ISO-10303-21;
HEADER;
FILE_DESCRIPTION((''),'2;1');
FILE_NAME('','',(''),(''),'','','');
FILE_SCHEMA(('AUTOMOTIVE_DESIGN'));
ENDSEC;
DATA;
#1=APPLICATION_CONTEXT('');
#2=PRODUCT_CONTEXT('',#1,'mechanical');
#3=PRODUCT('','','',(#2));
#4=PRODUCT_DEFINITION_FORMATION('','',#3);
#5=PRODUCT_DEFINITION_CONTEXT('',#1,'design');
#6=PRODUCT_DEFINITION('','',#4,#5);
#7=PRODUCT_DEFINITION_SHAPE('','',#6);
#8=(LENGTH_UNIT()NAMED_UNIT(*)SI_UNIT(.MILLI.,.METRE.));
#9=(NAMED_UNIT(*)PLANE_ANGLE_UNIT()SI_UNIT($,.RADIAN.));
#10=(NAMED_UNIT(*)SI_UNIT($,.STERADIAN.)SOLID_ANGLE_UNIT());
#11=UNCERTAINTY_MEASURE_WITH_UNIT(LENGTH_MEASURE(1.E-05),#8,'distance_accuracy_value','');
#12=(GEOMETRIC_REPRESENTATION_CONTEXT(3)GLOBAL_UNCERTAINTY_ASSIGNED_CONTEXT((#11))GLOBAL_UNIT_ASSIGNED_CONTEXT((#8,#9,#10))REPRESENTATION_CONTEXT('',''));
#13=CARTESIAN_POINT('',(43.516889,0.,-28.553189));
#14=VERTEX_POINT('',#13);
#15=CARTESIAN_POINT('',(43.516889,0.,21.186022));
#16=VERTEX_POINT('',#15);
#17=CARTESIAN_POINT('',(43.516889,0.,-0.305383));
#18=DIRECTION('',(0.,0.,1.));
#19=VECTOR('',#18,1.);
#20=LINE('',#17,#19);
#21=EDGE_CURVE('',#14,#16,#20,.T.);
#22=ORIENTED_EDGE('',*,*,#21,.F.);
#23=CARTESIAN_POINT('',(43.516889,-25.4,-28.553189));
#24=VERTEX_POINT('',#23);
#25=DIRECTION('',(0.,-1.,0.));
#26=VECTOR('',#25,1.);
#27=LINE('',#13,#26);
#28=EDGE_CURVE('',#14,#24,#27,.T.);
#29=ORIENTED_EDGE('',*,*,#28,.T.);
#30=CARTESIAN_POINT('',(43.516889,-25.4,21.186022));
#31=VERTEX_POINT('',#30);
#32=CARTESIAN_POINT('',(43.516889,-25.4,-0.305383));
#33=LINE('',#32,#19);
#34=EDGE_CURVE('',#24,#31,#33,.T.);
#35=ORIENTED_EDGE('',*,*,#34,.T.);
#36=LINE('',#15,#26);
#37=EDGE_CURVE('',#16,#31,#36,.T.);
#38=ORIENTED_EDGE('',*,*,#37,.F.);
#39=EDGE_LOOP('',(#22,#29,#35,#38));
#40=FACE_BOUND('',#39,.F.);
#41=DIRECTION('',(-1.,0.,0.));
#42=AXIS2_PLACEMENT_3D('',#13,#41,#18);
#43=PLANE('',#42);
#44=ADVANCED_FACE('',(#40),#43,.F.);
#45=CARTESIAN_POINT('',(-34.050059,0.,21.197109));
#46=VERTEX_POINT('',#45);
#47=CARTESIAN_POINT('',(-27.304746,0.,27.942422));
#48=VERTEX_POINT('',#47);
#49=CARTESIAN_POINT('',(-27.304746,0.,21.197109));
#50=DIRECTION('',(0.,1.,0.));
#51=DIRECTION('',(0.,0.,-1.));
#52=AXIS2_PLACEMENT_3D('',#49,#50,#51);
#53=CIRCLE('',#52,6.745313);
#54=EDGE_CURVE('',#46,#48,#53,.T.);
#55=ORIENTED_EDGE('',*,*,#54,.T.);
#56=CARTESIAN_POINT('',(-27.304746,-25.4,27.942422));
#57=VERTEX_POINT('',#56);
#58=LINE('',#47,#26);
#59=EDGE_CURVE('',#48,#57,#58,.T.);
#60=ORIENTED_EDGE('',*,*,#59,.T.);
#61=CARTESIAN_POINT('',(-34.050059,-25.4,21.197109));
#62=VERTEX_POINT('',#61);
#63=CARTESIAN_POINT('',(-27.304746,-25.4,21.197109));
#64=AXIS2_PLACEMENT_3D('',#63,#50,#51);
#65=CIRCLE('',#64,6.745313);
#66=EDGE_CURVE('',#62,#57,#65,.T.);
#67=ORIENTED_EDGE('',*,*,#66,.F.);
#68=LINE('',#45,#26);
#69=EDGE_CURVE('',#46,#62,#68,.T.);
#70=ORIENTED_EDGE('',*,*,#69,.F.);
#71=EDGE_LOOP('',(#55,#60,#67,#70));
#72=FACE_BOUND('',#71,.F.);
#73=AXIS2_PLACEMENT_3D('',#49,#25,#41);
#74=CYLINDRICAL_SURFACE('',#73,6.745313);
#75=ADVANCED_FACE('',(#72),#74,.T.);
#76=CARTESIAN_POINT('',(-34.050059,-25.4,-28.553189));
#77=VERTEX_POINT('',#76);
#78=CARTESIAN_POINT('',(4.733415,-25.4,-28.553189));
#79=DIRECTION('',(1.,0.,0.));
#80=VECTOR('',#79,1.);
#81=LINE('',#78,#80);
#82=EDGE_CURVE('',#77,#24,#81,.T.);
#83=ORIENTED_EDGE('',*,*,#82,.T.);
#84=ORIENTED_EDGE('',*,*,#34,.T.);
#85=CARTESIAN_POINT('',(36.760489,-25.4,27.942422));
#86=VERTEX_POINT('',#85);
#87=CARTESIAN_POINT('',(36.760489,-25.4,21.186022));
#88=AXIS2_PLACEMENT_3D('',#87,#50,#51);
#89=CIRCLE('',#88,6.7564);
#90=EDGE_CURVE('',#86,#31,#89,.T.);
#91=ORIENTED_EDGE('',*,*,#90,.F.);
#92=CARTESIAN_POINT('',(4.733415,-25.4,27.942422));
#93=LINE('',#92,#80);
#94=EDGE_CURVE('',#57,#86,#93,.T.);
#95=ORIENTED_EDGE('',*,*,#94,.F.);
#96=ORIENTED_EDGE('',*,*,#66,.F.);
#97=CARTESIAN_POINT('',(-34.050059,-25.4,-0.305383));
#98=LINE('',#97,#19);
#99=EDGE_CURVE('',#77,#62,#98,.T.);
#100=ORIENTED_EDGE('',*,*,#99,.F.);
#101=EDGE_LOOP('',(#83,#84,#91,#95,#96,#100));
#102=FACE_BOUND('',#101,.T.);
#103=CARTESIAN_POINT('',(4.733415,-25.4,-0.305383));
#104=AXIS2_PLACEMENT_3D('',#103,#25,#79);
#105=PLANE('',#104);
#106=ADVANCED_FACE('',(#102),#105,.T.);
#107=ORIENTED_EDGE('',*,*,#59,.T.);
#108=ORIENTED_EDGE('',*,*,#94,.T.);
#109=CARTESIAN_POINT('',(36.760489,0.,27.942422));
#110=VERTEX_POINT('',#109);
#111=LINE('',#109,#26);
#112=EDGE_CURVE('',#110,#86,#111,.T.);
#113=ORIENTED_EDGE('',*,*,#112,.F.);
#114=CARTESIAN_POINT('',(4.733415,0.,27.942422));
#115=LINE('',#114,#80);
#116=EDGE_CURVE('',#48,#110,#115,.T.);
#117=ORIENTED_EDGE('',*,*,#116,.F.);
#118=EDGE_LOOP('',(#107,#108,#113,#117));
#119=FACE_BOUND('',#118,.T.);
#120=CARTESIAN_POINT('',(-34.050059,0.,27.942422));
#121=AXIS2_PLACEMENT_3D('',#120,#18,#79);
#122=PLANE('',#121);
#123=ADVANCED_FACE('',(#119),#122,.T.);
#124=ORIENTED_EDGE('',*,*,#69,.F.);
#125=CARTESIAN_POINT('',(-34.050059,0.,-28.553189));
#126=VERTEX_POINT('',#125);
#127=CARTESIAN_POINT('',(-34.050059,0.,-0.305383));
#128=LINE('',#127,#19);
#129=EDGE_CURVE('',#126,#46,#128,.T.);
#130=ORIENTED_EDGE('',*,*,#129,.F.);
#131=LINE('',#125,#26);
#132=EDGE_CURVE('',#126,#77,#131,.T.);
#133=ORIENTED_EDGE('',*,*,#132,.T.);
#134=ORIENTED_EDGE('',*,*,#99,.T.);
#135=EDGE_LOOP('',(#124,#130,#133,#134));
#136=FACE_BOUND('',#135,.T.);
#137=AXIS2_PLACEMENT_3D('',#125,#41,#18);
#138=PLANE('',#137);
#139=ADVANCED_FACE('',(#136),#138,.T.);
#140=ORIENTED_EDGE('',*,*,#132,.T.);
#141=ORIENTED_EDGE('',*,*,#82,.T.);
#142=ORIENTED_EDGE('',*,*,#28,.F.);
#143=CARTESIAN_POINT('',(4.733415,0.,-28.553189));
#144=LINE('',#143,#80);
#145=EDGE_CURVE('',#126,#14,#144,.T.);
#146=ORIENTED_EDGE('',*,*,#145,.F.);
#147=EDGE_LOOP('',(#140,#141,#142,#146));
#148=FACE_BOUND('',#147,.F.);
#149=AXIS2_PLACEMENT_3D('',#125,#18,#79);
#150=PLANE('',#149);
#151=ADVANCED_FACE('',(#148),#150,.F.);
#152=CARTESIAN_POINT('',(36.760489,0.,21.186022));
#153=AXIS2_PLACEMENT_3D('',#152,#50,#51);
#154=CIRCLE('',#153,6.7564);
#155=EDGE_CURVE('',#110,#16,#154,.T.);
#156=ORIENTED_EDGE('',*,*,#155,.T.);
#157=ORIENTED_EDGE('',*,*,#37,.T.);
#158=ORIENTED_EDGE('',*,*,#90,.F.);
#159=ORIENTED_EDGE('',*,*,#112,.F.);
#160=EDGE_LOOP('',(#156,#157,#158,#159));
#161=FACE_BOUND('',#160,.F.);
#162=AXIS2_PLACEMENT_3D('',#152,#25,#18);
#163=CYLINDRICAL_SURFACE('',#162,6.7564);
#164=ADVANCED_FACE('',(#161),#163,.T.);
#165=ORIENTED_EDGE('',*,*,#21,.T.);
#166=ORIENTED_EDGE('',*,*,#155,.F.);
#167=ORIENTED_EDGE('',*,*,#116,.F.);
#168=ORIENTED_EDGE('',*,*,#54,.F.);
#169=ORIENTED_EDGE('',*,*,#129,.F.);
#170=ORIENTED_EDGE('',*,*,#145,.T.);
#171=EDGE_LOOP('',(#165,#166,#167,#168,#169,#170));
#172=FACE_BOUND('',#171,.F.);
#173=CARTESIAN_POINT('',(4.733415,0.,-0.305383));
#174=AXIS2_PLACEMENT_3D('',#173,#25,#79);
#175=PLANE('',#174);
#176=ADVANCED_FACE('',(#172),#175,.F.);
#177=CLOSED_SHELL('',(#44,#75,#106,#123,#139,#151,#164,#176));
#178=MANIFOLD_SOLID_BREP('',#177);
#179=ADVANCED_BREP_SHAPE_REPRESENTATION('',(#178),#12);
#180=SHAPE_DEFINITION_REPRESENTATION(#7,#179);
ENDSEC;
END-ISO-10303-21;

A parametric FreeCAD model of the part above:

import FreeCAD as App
import Part
import Sketcher


def edges_at(feature, points):
    """Names of the edges that pass closest to the given points."""
    edges = feature.Shape.Edges
    near = lambda p: min(range(len(edges)), key=lambda i: edges[i].distToShape(Part.Vertex(*p))[0])
    return sorted({f"Edge{near(p) + 1}" for p in points})

doc = App.newDocument("Part")
params = doc.addObject("Spreadsheet::Sheet", "Params")
for row, (alias, value) in enumerate([
    ("pad1_length", "1 in"),
    ("pad2_length", "1 in"),
    ("fillet_radius", "6.745313 mm"),
    ("fillet2_radius", "0.266 in"),
], start=1):
    params.set(f"A{row}", alias)
    params.set(f"B{row}", "=" + value)
    params.setAlias(f"B{row}", alias)

body = doc.addObject("PartDesign::Body", "Body")

# Sketch on XZ plane
sketch1 = doc.addObject("Sketcher::SketchObject", "Sketch")
body.addObject(sketch1)
sketch1.AttachmentSupport = (doc.XZ_Plane, [""])
sketch1.MapMode = "FlatFace"
sketch1.addGeometry(Part.LineSegment(App.Vector(-34, 28, 0), App.Vector(-34, -29, 0)), False)
sketch1.addGeometry(Part.LineSegment(App.Vector(-34, -29, 0), App.Vector(44, -29, 0)), False)
sketch1.addGeometry(Part.LineSegment(App.Vector(44, -29, 0), App.Vector(44, 28, 0)), False)
sketch1.addGeometry(Part.LineSegment(App.Vector(44, 28, 0), App.Vector(-34, 28, 0)), False)
sketch1.addConstraint(Sketcher.Constraint("Coincident", 0, 2, 1, 1))
sketch1.addConstraint(Sketcher.Constraint("Coincident", 1, 2, 2, 1))
sketch1.addConstraint(Sketcher.Constraint("Coincident", 2, 2, 3, 1))
sketch1.addConstraint(Sketcher.Constraint("Coincident", 3, 2, 0, 1))
sketch1.addConstraint(Sketcher.Constraint("Vertical", 0))
sketch1.addConstraint(Sketcher.Constraint("Horizontal", 1))
sketch1.addConstraint(Sketcher.Constraint("Vertical", 2))
sketch1.addConstraint(Sketcher.Constraint("Horizontal", 3))
sketch1.addConstraint(Sketcher.Constraint("DistanceY", 0, 2, 0, 1, 56.495611))
sketch1.addConstraint(Sketcher.Constraint("DistanceX", 1, 1, 1, 2, 77.566948))
sketch1.addConstraint(Sketcher.Constraint("DistanceX", 0, 2, -1, 1, 34.050059))
sketch1.addConstraint(Sketcher.Constraint("DistanceY", 0, 2, -1, 1, 28.553189))
pad1 = doc.addObject("PartDesign::Pad", "Pad")
body.addObject(pad1)
pad1.Profile = sketch1
pad1.setExpression("Length", "Params.pad1_length")

# Sketch on XZ plane
sketch2 = doc.addObject("Sketcher::SketchObject", "Sketch001")
body.addObject(sketch2)
sketch2.AttachmentSupport = (doc.XZ_Plane, [""])
sketch2.MapMode = "FlatFace"
sketch2.AttachmentOffset = App.Placement(App.Vector(0, 0, 1 * 25.4), App.Rotation())
sketch2.addGeometry(Part.Circle(App.Vector(0, 0, 0), App.Vector(0, 0, 1), 9), False)
sketch2.addConstraint(Sketcher.Constraint("Coincident", 0, 3, -1, 1))
sketch2.addConstraint(Sketcher.Constraint("Diameter", 0, 17.838498))
pad2 = doc.addObject("PartDesign::Pad", "Pad001")
body.addObject(pad2)
pad2.Profile = sketch2
pad2.setExpression("Length", "Params.pad2_length")
pad2.Reversed = True
doc.recompute()

fillet = doc.addObject("PartDesign::Fillet", "Fillet")
body.addObject(fillet)
fillet.Base = (pad2, edges_at(pad2, [(-34.05, -12.7, 27.942)]))
fillet.setExpression("Radius", "Params.fillet_radius")
doc.recompute()

fillet2 = doc.addObject("PartDesign::Fillet", "Fillet001")
body.addObject(fillet2)
fillet2.Base = (fillet, edges_at(fillet, [(43.517, -12.7, 27.942)]))
fillet2.setExpression("Radius", "Params.fillet2_radius")

doc.recompute()
